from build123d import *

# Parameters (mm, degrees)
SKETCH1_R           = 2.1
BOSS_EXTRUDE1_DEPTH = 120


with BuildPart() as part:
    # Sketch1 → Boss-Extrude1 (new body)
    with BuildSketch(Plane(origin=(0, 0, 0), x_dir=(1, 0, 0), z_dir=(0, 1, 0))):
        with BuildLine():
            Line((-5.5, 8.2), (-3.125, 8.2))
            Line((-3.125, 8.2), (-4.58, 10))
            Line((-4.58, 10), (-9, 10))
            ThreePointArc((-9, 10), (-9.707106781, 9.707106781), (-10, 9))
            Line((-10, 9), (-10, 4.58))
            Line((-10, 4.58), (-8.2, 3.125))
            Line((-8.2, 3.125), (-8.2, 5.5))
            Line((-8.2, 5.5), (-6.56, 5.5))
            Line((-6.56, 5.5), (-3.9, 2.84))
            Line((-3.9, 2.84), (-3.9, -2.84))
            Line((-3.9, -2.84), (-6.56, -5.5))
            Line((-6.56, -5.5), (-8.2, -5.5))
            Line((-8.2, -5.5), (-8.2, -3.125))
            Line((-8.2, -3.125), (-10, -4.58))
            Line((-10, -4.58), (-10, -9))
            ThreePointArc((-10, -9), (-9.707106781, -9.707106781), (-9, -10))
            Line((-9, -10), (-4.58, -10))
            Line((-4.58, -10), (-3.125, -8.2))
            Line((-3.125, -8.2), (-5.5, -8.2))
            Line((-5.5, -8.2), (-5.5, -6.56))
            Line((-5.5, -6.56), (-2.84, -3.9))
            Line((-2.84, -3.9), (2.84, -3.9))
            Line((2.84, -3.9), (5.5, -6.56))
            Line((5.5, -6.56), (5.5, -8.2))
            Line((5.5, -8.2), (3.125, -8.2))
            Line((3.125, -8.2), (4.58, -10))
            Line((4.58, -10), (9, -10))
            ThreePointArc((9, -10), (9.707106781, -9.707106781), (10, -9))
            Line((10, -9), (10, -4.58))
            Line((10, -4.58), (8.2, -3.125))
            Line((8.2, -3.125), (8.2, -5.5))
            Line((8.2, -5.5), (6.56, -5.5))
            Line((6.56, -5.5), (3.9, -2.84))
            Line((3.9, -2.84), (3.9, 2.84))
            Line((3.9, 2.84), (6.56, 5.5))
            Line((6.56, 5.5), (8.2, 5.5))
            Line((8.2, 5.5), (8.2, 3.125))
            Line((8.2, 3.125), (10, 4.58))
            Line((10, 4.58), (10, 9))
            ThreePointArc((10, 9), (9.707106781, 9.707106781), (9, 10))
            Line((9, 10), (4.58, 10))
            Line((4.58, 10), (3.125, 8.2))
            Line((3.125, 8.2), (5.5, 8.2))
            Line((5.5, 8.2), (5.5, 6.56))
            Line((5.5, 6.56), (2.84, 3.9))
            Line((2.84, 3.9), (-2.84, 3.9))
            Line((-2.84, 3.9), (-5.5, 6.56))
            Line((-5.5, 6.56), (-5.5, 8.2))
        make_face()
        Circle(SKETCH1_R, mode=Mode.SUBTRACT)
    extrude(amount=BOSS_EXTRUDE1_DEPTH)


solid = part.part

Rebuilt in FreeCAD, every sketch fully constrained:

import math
import FreeCAD as App
import Part
import Sketcher
from FreeCAD import Vector
Q = App.Units.Quantity

doc = App.newDocument("Part")
body = doc.addObject("PartDesign::Body", "Body")

sketch1 = body.newObject("Sketcher::SketchObject", "Sketch")
sketch1.AttachmentSupport = (doc.getObject("XZ_Plane"), [""])
sketch1.MapMode = "FlatFace"
sketch1.addGeometry([
    Part.LineSegment(Vector(-5.5, -8.2, 0), Vector(-3.1, -8.2, 0)),
    Part.LineSegment(Vector(-3.1, -8.2, 0), Vector(-4.6, -10, 0)),
    Part.LineSegment(Vector(-4.6, -10, 0), Vector(-9, -10, 0)),
    Part.ArcOfCircle(Part.Circle(Vector(-9, -9, 0), Vector(0, 0, 1), 1), math.radians(-180), math.radians(-90)),
    Part.LineSegment(Vector(-10, -9, 0), Vector(-10, -4.6, 0)),
    Part.LineSegment(Vector(-10, -4.6, 0), Vector(-8.2, -3.1, 0)),
    Part.LineSegment(Vector(-8.2, -3.1, 0), Vector(-8.2, -5.5, 0)),
    Part.LineSegment(Vector(-8.2, -5.5, 0), Vector(-6.6, -5.5, 0)),
    Part.LineSegment(Vector(-6.6, -5.5, 0), Vector(-3.9, -2.8, 0)),
    Part.LineSegment(Vector(-3.9, -2.8, 0), Vector(-3.9, 2.8, 0)),
    Part.LineSegment(Vector(-3.9, 2.8, 0), Vector(-6.6, 5.5, 0)),
    Part.LineSegment(Vector(-6.6, 5.5, 0), Vector(-8.2, 5.5, 0)),
    Part.LineSegment(Vector(-8.2, 5.5, 0), Vector(-8.2, 3.1, 0)),
    Part.LineSegment(Vector(-8.2, 3.1, 0), Vector(-10, 4.6, 0)),
    Part.LineSegment(Vector(-10, 4.6, 0), Vector(-10, 9, 0)),
    Part.ArcOfCircle(Part.Circle(Vector(-9, 9, 0), Vector(0, 0, 1), 1), math.radians(90), math.radians(180)),
    Part.LineSegment(Vector(-9, 10, 0), Vector(-4.6, 10, 0)),
    Part.LineSegment(Vector(-4.6, 10, 0), Vector(-3.1, 8.2, 0)),
    Part.LineSegment(Vector(-3.1, 8.2, 0), Vector(-5.5, 8.2, 0)),
    Part.LineSegment(Vector(-5.5, 8.2, 0), Vector(-5.5, 6.6, 0)),
    Part.LineSegment(Vector(-5.5, 6.6, 0), Vector(-2.8, 3.9, 0)),
    Part.LineSegment(Vector(-2.8, 3.9, 0), Vector(2.8, 3.9, 0)),
    Part.LineSegment(Vector(2.8, 3.9, 0), Vector(5.5, 6.6, 0)),
    Part.LineSegment(Vector(5.5, 6.6, 0), Vector(5.5, 8.2, 0)),
    Part.LineSegment(Vector(5.5, 8.2, 0), Vector(3.1, 8.2, 0)),
    Part.LineSegment(Vector(3.1, 8.2, 0), Vector(4.6, 10, 0)),
    Part.LineSegment(Vector(4.6, 10, 0), Vector(9, 10, 0)),
    Part.ArcOfCircle(Part.Circle(Vector(9, 9, 0), Vector(0, 0, 1), 1), math.radians(0), math.radians(90)),
    Part.LineSegment(Vector(10, 9, 0), Vector(10, 4.6, 0)),
    Part.LineSegment(Vector(10, 4.6, 0), Vector(8.2, 3.1, 0)),
    Part.LineSegment(Vector(8.2, 3.1, 0), Vector(8.2, 5.5, 0)),
    Part.LineSegment(Vector(8.2, 5.5, 0), Vector(6.6, 5.5, 0)),
    Part.LineSegment(Vector(6.6, 5.5, 0), Vector(3.9, 2.8, 0)),
    Part.LineSegment(Vector(3.9, 2.8, 0), Vector(3.9, -2.8, 0)),
    Part.LineSegment(Vector(3.9, -2.8, 0), Vector(6.6, -5.5, 0)),
    Part.LineSegment(Vector(6.6, -5.5, 0), Vector(8.2, -5.5, 0)),
    Part.LineSegment(Vector(8.2, -5.5, 0), Vector(8.2, -3.1, 0)),
    Part.LineSegment(Vector(8.2, -3.1, 0), Vector(10, -4.6, 0)),
    Part.LineSegment(Vector(10, -4.6, 0), Vector(10, -9, 0)),
    Part.ArcOfCircle(Part.Circle(Vector(9, -9, 0), Vector(0, 0, 1), 1), math.radians(-90), math.radians(0)),
    Part.LineSegment(Vector(9, -10, 0), Vector(4.6, -10, 0)),
    Part.LineSegment(Vector(4.6, -10, 0), Vector(3.1, -8.2, 0)),
    Part.LineSegment(Vector(3.1, -8.2, 0), Vector(5.5, -8.2, 0)),
    Part.LineSegment(Vector(5.5, -8.2, 0), Vector(5.5, -6.6, 0)),
    Part.LineSegment(Vector(5.5, -6.6, 0), Vector(2.8, -3.9, 0)),
    Part.LineSegment(Vector(2.8, -3.9, 0), Vector(-2.8, -3.9, 0)),
    Part.LineSegment(Vector(-2.8, -3.9, 0), Vector(-5.5, -6.6, 0)),
    Part.LineSegment(Vector(-5.5, -6.6, 0), Vector(-5.5, -8.2, 0)),
    Part.Circle(Vector(0, 0, 0), Vector(0, 0, 1), 2.1),
], False)
sketch1.addConstraint([
    Sketcher.Constraint("Coincident", 0, 2, 1, 1),
    Sketcher.Constraint("Coincident", 1, 2, 2, 1),
    Sketcher.Constraint("Tangent", 2, 2, 3, 2),
    Sketcher.Constraint("Tangent", 3, 1, 4, 1),
    Sketcher.Constraint("Coincident", 4, 2, 5, 1),
    Sketcher.Constraint("Coincident", 5, 2, 6, 1),
    Sketcher.Constraint("Coincident", 6, 2, 7, 1),
    Sketcher.Constraint("Coincident", 7, 2, 8, 1),
    Sketcher.Constraint("Coincident", 8, 2, 9, 1),
    Sketcher.Constraint("Coincident", 9, 2, 10, 1),
    Sketcher.Constraint("Coincident", 10, 2, 11, 1),
    Sketcher.Constraint("Coincident", 11, 2, 12, 1),
    Sketcher.Constraint("Coincident", 12, 2, 13, 1),
    Sketcher.Constraint("Coincident", 13, 2, 14, 1),
    Sketcher.Constraint("Tangent", 14, 2, 15, 2),
    Sketcher.Constraint("Tangent", 15, 1, 16, 1),
    Sketcher.Constraint("Coincident", 16, 2, 17, 1),
    Sketcher.Constraint("Coincident", 17, 2, 18, 1),
    Sketcher.Constraint("Coincident", 18, 2, 19, 1),
    Sketcher.Constraint("Coincident", 19, 2, 20, 1),
    Sketcher.Constraint("Coincident", 20, 2, 21, 1),
    Sketcher.Constraint("Coincident", 21, 2, 22, 1),
    Sketcher.Constraint("Coincident", 22, 2, 23, 1),
    Sketcher.Constraint("Coincident", 23, 2, 24, 1),
    Sketcher.Constraint("Coincident", 24, 2, 25, 1),
    Sketcher.Constraint("Coincident", 25, 2, 26, 1),
    Sketcher.Constraint("Tangent", 26, 2, 27, 2),
    Sketcher.Constraint("Tangent", 27, 1, 28, 1),
    Sketcher.Constraint("Coincident", 28, 2, 29, 1),
    Sketcher.Constraint("Coincident", 29, 2, 30, 1),
    Sketcher.Constraint("Coincident", 30, 2, 31, 1),
    Sketcher.Constraint("Coincident", 31, 2, 32, 1),
    Sketcher.Constraint("Coincident", 32, 2, 33, 1),
    Sketcher.Constraint("Coincident", 33, 2, 34, 1),
    Sketcher.Constraint("Coincident", 34, 2, 35, 1),
    Sketcher.Constraint("Coincident", 35, 2, 36, 1),
    Sketcher.Constraint("Coincident", 36, 2, 37, 1),
    Sketcher.Constraint("Coincident", 37, 2, 38, 1),
    Sketcher.Constraint("Tangent", 38, 2, 39, 2),
    Sketcher.Constraint("Tangent", 39, 1, 40, 1),
    Sketcher.Constraint("Coincident", 40, 2, 41, 1),
    Sketcher.Constraint("Coincident", 41, 2, 42, 1),
    Sketcher.Constraint("Coincident", 42, 2, 43, 1),
    Sketcher.Constraint("Coincident", 43, 2, 44, 1),
    Sketcher.Constraint("Coincident", 44, 2, 45, 1),
    Sketcher.Constraint("Coincident", 45, 2, 46, 1),
    Sketcher.Constraint("Coincident", 46, 2, 47, 1),
    Sketcher.Constraint("Coincident", 47, 2, 0, 1),
    Sketcher.Constraint("Horizontal", 0),
    Sketcher.Constraint("Horizontal", 2),
    Sketcher.Constraint("Vertical", 4),
    Sketcher.Constraint("Vertical", 6),
    Sketcher.Constraint("Horizontal", 7),
    Sketcher.Constraint("Vertical", 9),
    Sketcher.Constraint("Horizontal", 11),
    Sketcher.Constraint("Vertical", 12),
    Sketcher.Constraint("Vertical", 14),
    Sketcher.Constraint("Horizontal", 16),
    Sketcher.Constraint("Horizontal", 18),
    Sketcher.Constraint("Vertical", 19),
    Sketcher.Constraint("Horizontal", 21),
    Sketcher.Constraint("Vertical", 23),
    Sketcher.Constraint("Horizontal", 24),
    Sketcher.Constraint("Horizontal", 26),
    Sketcher.Constraint("Vertical", 28),
    Sketcher.Constraint("Vertical", 30),
    Sketcher.Constraint("Horizontal", 31),
    Sketcher.Constraint("Vertical", 33),
    Sketcher.Constraint("Horizontal", 35),
    Sketcher.Constraint("Vertical", 36),
    Sketcher.Constraint("Vertical", 38),
    Sketcher.Constraint("Horizontal", 40),
    Sketcher.Constraint("Horizontal", 42),
    Sketcher.Constraint("Vertical", 43),
    Sketcher.Constraint("Horizontal", 45),
    Sketcher.Constraint("Vertical", 47),
    Sketcher.Constraint("Coincident", 48, 3, -1, 1),
    Sketcher.Constraint("Equal", 3, 15),
    Sketcher.Constraint("Equal", 15, 27),
    Sketcher.Constraint("Equal", 27, 39),
    Sketcher.Constraint("Symmetric", 3, 3, 27, 3, -1, 1),
    Sketcher.Constraint("Symmetric", 15, 3, 39, 3, -1, 1),
    Sketcher.Constraint("Symmetric", 0, 2, 24, 2, -1, 1),
    Sketcher.Constraint("Symmetric", 5, 2, 29, 2, -1, 1),
    Sketcher.Constraint("Symmetric", 7, 2, 31, 2, -1, 1),
    Sketcher.Constraint("Symmetric", 8, 2, 32, 2, -1, 1),
    Sketcher.Constraint("Symmetric", 10, 2, 34, 2, -1, 1),
    Sketcher.Constraint("Symmetric", 12, 2, 36, 2, -1, 1),
    Sketcher.Constraint("Symmetric", 17, 2, 41, 2, -1, 1),
    Sketcher.Constraint("Symmetric", 19, 2, 43, 2, -1, 1),
    Sketcher.Constraint("Symmetric", 20, 2, 44, 2, -1, 1),
    Sketcher.Constraint("Symmetric", 22, 2, 46, 2, -1, 1),
    Sketcher.Constraint("Symmetric", 15, 3, 27, 3, -2),
    Sketcher.Constraint("Symmetric", 19, 2, 22, 2, -2),
    Sketcher.Constraint("Symmetric", 17, 2, 24, 2, -2),
    Sketcher.Constraint("Symmetric", 12, 2, 29, 2, -2),
    Sketcher.Constraint("Symmetric", 10, 2, 31, 2, -2),
    Sketcher.Constraint("Perpendicular", 8, 10),
    Sketcher.Constraint("Perpendicular", 1, 13),
    Sketcher.Constraint("Perpendicular", 5, 17),
    Sketcher.Constraint("Parallel", 10, 20),
    Sketcher.Constraint("Perpendicular", 20, 22),
    Sketcher.Constraint("Perpendicular", 13, 25),
    Sketcher.Constraint("Perpendicular", 17, 29),
    Sketcher.Constraint("Perpendicular", 32, 34),
    Sketcher.Constraint("Perpendicular", 25, 37),
    Sketcher.Constraint("Perpendicular", 29, 41),
    Sketcher.Constraint("Perpendicular", 44, 46),
    Sketcher.Constraint("Horizontal", 13, 2, 28, 2),
    Sketcher.Constraint("Horizontal", 9, 2, 32, 2),
    Sketcher.Constraint("Equal", 40, 4),
    Sketcher.Constraint("Equal", 42, 6),
    Sketcher.Constraint("Equal", 45, 9),
    Sketcher.Constraint("Equal", 35, 19),
    Sketcher.Constraint("Equal", 1, 5),
    Sketcher.Constraint("Equal", 10, 20),
    Sketcher.Constraint("Radius", 3, Q("1 mm")),
    Sketcher.Constraint("Diameter", 48, Q("4.2 mm")),
    Sketcher.Constraint("DistanceX", 3, 3, -1, 1, Q("9 mm")),
    Sketcher.Constraint("DistanceX", 2, 2, 2, 1, Q("4.42 mm")),
    Sketcher.Constraint("DistanceX", 7, 1, 7, 2, Q("1.64 mm")),
    Sketcher.Constraint("DistanceX", 21, 1, 21, 2, Q("5.68 mm")),
    Sketcher.Constraint("DistanceY", 0, 2, -1, 1, Q("8.2 mm")),
    Sketcher.Constraint("DistanceY", 6, 2, -1, 1, Q("5.5 mm")),
    Sketcher.Constraint("DistanceX", 0, 1, 0, 2, Q("2.375 mm")),
])
pad1 = body.newObject("PartDesign::Pad", "Pad")
pad1.Profile = sketch1
pad1.Length = 120
pad1.Reversed = True

doc.recompute()
